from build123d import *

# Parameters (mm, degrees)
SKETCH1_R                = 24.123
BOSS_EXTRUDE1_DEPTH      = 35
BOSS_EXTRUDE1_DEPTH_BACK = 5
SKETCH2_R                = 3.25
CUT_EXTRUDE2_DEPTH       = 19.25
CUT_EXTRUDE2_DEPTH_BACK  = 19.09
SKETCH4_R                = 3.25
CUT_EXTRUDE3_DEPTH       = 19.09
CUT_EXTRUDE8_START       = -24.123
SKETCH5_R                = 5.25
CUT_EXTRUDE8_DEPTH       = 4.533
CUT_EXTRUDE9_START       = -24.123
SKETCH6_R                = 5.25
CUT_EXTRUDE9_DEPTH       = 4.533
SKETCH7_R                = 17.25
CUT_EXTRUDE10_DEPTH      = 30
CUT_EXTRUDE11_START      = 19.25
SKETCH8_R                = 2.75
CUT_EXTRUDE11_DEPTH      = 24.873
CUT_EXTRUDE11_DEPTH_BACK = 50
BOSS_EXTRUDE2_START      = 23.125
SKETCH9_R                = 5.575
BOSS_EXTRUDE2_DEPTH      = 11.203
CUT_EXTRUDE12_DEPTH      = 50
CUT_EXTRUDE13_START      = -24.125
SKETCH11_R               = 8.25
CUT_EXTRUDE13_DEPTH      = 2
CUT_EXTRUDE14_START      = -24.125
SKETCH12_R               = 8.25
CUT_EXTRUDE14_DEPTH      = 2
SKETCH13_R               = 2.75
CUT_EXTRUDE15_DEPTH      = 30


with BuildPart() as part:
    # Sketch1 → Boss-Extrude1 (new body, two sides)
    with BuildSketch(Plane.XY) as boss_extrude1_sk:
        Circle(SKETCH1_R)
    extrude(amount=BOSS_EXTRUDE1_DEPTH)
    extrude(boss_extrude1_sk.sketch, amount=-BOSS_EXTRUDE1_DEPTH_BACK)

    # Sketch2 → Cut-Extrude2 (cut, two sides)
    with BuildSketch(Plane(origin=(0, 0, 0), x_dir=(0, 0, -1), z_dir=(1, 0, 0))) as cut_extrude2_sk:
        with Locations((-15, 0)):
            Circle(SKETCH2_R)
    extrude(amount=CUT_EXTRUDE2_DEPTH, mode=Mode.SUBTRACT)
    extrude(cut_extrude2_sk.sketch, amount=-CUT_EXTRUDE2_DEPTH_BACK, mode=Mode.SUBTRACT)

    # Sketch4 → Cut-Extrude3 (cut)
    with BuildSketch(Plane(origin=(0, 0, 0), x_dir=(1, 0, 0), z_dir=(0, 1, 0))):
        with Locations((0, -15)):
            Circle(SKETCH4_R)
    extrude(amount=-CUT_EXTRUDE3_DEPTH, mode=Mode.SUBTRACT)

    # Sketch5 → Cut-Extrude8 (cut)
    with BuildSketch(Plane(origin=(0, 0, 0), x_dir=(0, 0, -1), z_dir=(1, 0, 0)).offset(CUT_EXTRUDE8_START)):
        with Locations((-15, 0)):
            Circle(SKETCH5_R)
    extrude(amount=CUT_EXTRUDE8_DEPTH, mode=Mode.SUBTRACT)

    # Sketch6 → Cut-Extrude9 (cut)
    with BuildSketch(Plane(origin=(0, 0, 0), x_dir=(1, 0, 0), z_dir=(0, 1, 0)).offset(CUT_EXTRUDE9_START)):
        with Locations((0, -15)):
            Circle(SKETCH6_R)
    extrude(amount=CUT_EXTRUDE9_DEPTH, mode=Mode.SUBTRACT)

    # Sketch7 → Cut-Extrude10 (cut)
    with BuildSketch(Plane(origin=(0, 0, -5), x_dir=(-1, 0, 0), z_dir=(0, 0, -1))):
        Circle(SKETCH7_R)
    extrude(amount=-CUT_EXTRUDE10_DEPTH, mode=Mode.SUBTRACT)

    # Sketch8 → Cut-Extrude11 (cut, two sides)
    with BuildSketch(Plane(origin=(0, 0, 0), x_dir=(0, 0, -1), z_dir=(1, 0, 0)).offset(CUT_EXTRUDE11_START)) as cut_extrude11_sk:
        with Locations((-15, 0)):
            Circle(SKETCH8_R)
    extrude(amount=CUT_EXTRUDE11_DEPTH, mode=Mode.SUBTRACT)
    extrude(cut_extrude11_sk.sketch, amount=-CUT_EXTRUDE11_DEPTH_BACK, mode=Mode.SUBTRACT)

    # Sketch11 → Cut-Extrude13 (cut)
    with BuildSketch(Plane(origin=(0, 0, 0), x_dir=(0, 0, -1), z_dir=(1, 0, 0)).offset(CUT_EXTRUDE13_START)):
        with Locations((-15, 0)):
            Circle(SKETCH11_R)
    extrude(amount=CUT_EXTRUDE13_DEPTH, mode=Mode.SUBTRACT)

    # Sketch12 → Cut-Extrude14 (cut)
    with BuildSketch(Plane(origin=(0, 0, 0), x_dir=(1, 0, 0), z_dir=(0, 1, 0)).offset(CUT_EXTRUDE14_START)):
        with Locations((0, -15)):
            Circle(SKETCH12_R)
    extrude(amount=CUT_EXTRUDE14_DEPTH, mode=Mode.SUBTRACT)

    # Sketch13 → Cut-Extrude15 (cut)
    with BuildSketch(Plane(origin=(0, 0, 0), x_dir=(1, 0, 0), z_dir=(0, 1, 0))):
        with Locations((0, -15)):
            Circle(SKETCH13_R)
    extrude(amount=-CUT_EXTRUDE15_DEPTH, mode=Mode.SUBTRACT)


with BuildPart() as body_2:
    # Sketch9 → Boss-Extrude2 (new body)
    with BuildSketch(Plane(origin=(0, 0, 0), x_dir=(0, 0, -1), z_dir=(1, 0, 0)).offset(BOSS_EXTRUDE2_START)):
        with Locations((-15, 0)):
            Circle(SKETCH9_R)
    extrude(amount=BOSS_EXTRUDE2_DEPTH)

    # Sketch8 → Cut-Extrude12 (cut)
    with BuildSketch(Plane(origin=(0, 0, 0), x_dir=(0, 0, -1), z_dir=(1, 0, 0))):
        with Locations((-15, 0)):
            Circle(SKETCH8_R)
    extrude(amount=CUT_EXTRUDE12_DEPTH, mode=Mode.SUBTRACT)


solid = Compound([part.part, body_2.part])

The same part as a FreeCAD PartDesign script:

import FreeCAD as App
import Part
import Sketcher
from FreeCAD import Vector

doc = App.newDocument("Part")
body = doc.addObject("PartDesign::Body", "Body")

# Sketch on XY plane
sketch1 = doc.addObject("Sketcher::SketchObject", "Sketch")
body.addObject(sketch1)
sketch1.AttachmentSupport = (doc.XY_Plane, [""])
sketch1.MapMode = "FlatFace"
sketch1.addGeometry(Part.Circle(Vector(0, 0, 0), Vector(0, 0, 1), 24), False)
sketch1.addConstraint([
    Sketcher.Constraint("Coincident", 0, 3, -1, 1),
    Sketcher.Constraint("Diameter", 0, 48.246),
])
pad1 = doc.addObject("PartDesign::Pad", "Pad")
body.addObject(pad1)
pad1.Profile = sketch1
pad1.Type = "TwoLengths"
pad1.Length = 35
pad1.Length2 = 5

# Sketch on YZ plane
sketch2 = doc.addObject("Sketcher::SketchObject", "Sketch001")
body.addObject(sketch2)
sketch2.AttachmentSupport = (doc.YZ_Plane, [""])
sketch2.MapMode = "FlatFace"
sketch2.addGeometry(Part.Circle(Vector(0, 15, 0), Vector(0, 0, 1), 3.2), False)
sketch2.addConstraint([
    Sketcher.Constraint("PointOnObject", 0, 3, -2),
    Sketcher.Constraint("Diameter", 0, 6.5),
    Sketcher.Constraint("DistanceY", -1, 1, 0, 3, 15.0),
])
pocket1 = doc.addObject("PartDesign::Pocket", "Pocket")
body.addObject(pocket1)
pocket1.Profile = sketch2
pocket1.Type = "TwoLengths"
pocket1.Length = 19.25
pocket1.Length2 = 19.09
pocket1.Reversed = True

# Sketch on XZ plane
sketch3 = doc.addObject("Sketcher::SketchObject", "Sketch002")
body.addObject(sketch3)
sketch3.AttachmentSupport = (doc.XZ_Plane, [""])
sketch3.MapMode = "FlatFace"
sketch3.addGeometry(Part.Circle(Vector(0, 15, 0), Vector(0, 0, 1), 3.2), False)
sketch3.addConstraint([
    Sketcher.Constraint("PointOnObject", 0, 3, -2),
    Sketcher.Constraint("Diameter", 0, 6.5),
    Sketcher.Constraint("DistanceY", -1, 1, 0, 3, 15.0),
])
pocket2 = doc.addObject("PartDesign::Pocket", "Pocket001")
body.addObject(pocket2)
pocket2.Profile = sketch3
pocket2.Length = 19.09
pocket2.Reversed = True

# Sketch on YZ plane
sketch4 = doc.addObject("Sketcher::SketchObject", "Sketch003")
body.addObject(sketch4)
sketch4.AttachmentSupport = (doc.YZ_Plane, [""])
sketch4.MapMode = "FlatFace"
sketch4.AttachmentOffset = App.Placement(Vector(0, 0, -24.123), App.Rotation())
sketch4.addGeometry(Part.Circle(Vector(0, 15, 0), Vector(0, 0, 1), 5), False)
sketch4.addConstraint([
    Sketcher.Constraint("PointOnObject", 0, 3, -2),
    Sketcher.Constraint("Diameter", 0, 10.5),
    Sketcher.Constraint("DistanceY", -1, 1, 0, 3, 15.0),
])
pocket3 = doc.addObject("PartDesign::Pocket", "Pocket002")
body.addObject(pocket3)
pocket3.Profile = sketch4
pocket3.Length = 4.533
pocket3.Reversed = True

# Sketch on XZ plane
sketch5 = doc.addObject("Sketcher::SketchObject", "Sketch004")
body.addObject(sketch5)
sketch5.AttachmentSupport = (doc.XZ_Plane, [""])
sketch5.MapMode = "FlatFace"
sketch5.AttachmentOffset = App.Placement(Vector(0, 0, 24.123), App.Rotation())
sketch5.addGeometry(Part.Circle(Vector(0, 15, 0), Vector(0, 0, 1), 5), False)
sketch5.addConstraint([
    Sketcher.Constraint("PointOnObject", 0, 3, -2),
    Sketcher.Constraint("Diameter", 0, 10.5),
    Sketcher.Constraint("DistanceY", -1, 1, 0, 3, 15.0),
])
pocket4 = doc.addObject("PartDesign::Pocket", "Pocket003")
body.addObject(pocket4)
pocket4.Profile = sketch5
pocket4.Length = 4.533

# Sketch on XY plane
sketch6 = doc.addObject("Sketcher::SketchObject", "Sketch005")
body.addObject(sketch6)
sketch6.AttachmentSupport = (doc.XY_Plane, [""])
sketch6.MapMode = "FlatFace"
sketch6.AttachmentOffset = App.Placement(Vector(0, 0, -5), App.Rotation())
sketch6.addGeometry(Part.Circle(Vector(0, 0, 0), Vector(0, 0, 1), 17), False)
sketch6.addConstraint([
    Sketcher.Constraint("Coincident", 0, 3, -1, 1),
    Sketcher.Constraint("Diameter", 0, 34.5),
])
pocket5 = doc.addObject("PartDesign::Pocket", "Pocket004")
body.addObject(pocket5)
pocket5.Profile = sketch6
pocket5.Length = 30
pocket5.Reversed = True

# Sketch on YZ plane
sketch7 = doc.addObject("Sketcher::SketchObject", "Sketch006")
body.addObject(sketch7)
sketch7.AttachmentSupport = (doc.YZ_Plane, [""])
sketch7.MapMode = "FlatFace"
sketch7.AttachmentOffset = App.Placement(Vector(0, 0, 19.25), App.Rotation())
sketch7.addGeometry(Part.Circle(Vector(0, 15, 0), Vector(0, 0, 1), 2.8), False)
sketch7.addConstraint([
    Sketcher.Constraint("PointOnObject", 0, 3, -2),
    Sketcher.Constraint("Diameter", 0, 5.5),
    Sketcher.Constraint("DistanceY", -1, 1, 0, 3, 15.0),
])
pocket6 = doc.addObject("PartDesign::Pocket", "Pocket005")
body.addObject(pocket6)
pocket6.Profile = sketch7
pocket6.Type = "ThroughAll"
pocket6.Midplane = True

# Sketch on YZ plane
sketch8 = doc.addObject("Sketcher::SketchObject", "Sketch007")
body.addObject(sketch8)
sketch8.AttachmentSupport = (doc.YZ_Plane, [""])
sketch8.MapMode = "FlatFace"
sketch8.AttachmentOffset = App.Placement(Vector(0, 0, -24.125), App.Rotation())
sketch8.addGeometry(Part.Circle(Vector(0, 15, 0), Vector(0, 0, 1), 8), False)
sketch8.addConstraint([
    Sketcher.Constraint("PointOnObject", 0, 3, -2),
    Sketcher.Constraint("Diameter", 0, 16.5),
    Sketcher.Constraint("DistanceY", -1, 1, 0, 3, 15.0),
])
pocket7 = doc.addObject("PartDesign::Pocket", "Pocket006")
body.addObject(pocket7)
pocket7.Profile = sketch8
pocket7.Length = 2
pocket7.Reversed = True

# Sketch on XZ plane
sketch9 = doc.addObject("Sketcher::SketchObject", "Sketch008")
body.addObject(sketch9)
sketch9.AttachmentSupport = (doc.XZ_Plane, [""])
sketch9.MapMode = "FlatFace"
sketch9.AttachmentOffset = App.Placement(Vector(0, 0, 24.125), App.Rotation())
sketch9.addGeometry(Part.Circle(Vector(0, 15, 0), Vector(0, 0, 1), 8), False)
sketch9.addConstraint([
    Sketcher.Constraint("PointOnObject", 0, 3, -2),
    Sketcher.Constraint("Diameter", 0, 16.5),
    Sketcher.Constraint("DistanceY", -1, 1, 0, 3, 15.0),
])
pocket8 = doc.addObject("PartDesign::Pocket", "Pocket007")
body.addObject(pocket8)
pocket8.Profile = sketch9
pocket8.Length = 2

# Sketch on XZ plane
sketch10 = doc.addObject("Sketcher::SketchObject", "Sketch009")
body.addObject(sketch10)
sketch10.AttachmentSupport = (doc.XZ_Plane, [""])
sketch10.MapMode = "FlatFace"
sketch10.addGeometry(Part.Circle(Vector(0, 15, 0), Vector(0, 0, 1), 2.8), False)
sketch10.addConstraint([
    Sketcher.Constraint("PointOnObject", 0, 3, -2),
    Sketcher.Constraint("Diameter", 0, 5.5),
    Sketcher.Constraint("DistanceY", -1, 1, 0, 3, 15.0),
])
pocket9 = doc.addObject("PartDesign::Pocket", "Pocket008")
body.addObject(pocket9)
pocket9.Profile = sketch10
pocket9.Length = 30
pocket9.Reversed = True
body2 = doc.addObject("PartDesign::Body", "Body001")

# Sketch on YZ plane
sketch11 = doc.addObject("Sketcher::SketchObject", "Sketch010")
body2.addObject(sketch11)
sketch11.AttachmentSupport = (doc.getObject("YZ_Plane001"), [""])
sketch11.MapMode = "FlatFace"
sketch11.AttachmentOffset = App.Placement(Vector(0, 0, 23.125), App.Rotation())
sketch11.addGeometry(Part.Circle(Vector(0, 15, 0), Vector(0, 0, 1), 6), False)
sketch11.addConstraint([
    Sketcher.Constraint("PointOnObject", 0, 3, -2),
    Sketcher.Constraint("Diameter", 0, 11.15),
    Sketcher.Constraint("DistanceY", -1, 1, 0, 3, 15.0),
])
pad2 = doc.addObject("PartDesign::Pad", "Pad001")
body2.addObject(pad2)
pad2.Profile = sketch11
pad2.Length = 11.203

# Sketch on YZ plane
sketch12 = doc.addObject("Sketcher::SketchObject", "Sketch011")
body2.addObject(sketch12)
sketch12.AttachmentSupport = (doc.getObject("YZ_Plane001"), [""])
sketch12.MapMode = "FlatFace"
sketch12.addGeometry(Part.Circle(Vector(0, 15, 0), Vector(0, 0, 1), 2.8), False)
sketch12.addConstraint([
    Sketcher.Constraint("PointOnObject", 0, 3, -2),
    Sketcher.Constraint("Diameter", 0, 5.5),
    Sketcher.Constraint("DistanceY", -1, 1, 0, 3, 15.0),
])
pocket10 = doc.addObject("PartDesign::Pocket", "Pocket009")
body2.addObject(pocket10)
pocket10.Profile = sketch12
pocket10.Length = 50
pocket10.Reversed = True

doc.recompute()
